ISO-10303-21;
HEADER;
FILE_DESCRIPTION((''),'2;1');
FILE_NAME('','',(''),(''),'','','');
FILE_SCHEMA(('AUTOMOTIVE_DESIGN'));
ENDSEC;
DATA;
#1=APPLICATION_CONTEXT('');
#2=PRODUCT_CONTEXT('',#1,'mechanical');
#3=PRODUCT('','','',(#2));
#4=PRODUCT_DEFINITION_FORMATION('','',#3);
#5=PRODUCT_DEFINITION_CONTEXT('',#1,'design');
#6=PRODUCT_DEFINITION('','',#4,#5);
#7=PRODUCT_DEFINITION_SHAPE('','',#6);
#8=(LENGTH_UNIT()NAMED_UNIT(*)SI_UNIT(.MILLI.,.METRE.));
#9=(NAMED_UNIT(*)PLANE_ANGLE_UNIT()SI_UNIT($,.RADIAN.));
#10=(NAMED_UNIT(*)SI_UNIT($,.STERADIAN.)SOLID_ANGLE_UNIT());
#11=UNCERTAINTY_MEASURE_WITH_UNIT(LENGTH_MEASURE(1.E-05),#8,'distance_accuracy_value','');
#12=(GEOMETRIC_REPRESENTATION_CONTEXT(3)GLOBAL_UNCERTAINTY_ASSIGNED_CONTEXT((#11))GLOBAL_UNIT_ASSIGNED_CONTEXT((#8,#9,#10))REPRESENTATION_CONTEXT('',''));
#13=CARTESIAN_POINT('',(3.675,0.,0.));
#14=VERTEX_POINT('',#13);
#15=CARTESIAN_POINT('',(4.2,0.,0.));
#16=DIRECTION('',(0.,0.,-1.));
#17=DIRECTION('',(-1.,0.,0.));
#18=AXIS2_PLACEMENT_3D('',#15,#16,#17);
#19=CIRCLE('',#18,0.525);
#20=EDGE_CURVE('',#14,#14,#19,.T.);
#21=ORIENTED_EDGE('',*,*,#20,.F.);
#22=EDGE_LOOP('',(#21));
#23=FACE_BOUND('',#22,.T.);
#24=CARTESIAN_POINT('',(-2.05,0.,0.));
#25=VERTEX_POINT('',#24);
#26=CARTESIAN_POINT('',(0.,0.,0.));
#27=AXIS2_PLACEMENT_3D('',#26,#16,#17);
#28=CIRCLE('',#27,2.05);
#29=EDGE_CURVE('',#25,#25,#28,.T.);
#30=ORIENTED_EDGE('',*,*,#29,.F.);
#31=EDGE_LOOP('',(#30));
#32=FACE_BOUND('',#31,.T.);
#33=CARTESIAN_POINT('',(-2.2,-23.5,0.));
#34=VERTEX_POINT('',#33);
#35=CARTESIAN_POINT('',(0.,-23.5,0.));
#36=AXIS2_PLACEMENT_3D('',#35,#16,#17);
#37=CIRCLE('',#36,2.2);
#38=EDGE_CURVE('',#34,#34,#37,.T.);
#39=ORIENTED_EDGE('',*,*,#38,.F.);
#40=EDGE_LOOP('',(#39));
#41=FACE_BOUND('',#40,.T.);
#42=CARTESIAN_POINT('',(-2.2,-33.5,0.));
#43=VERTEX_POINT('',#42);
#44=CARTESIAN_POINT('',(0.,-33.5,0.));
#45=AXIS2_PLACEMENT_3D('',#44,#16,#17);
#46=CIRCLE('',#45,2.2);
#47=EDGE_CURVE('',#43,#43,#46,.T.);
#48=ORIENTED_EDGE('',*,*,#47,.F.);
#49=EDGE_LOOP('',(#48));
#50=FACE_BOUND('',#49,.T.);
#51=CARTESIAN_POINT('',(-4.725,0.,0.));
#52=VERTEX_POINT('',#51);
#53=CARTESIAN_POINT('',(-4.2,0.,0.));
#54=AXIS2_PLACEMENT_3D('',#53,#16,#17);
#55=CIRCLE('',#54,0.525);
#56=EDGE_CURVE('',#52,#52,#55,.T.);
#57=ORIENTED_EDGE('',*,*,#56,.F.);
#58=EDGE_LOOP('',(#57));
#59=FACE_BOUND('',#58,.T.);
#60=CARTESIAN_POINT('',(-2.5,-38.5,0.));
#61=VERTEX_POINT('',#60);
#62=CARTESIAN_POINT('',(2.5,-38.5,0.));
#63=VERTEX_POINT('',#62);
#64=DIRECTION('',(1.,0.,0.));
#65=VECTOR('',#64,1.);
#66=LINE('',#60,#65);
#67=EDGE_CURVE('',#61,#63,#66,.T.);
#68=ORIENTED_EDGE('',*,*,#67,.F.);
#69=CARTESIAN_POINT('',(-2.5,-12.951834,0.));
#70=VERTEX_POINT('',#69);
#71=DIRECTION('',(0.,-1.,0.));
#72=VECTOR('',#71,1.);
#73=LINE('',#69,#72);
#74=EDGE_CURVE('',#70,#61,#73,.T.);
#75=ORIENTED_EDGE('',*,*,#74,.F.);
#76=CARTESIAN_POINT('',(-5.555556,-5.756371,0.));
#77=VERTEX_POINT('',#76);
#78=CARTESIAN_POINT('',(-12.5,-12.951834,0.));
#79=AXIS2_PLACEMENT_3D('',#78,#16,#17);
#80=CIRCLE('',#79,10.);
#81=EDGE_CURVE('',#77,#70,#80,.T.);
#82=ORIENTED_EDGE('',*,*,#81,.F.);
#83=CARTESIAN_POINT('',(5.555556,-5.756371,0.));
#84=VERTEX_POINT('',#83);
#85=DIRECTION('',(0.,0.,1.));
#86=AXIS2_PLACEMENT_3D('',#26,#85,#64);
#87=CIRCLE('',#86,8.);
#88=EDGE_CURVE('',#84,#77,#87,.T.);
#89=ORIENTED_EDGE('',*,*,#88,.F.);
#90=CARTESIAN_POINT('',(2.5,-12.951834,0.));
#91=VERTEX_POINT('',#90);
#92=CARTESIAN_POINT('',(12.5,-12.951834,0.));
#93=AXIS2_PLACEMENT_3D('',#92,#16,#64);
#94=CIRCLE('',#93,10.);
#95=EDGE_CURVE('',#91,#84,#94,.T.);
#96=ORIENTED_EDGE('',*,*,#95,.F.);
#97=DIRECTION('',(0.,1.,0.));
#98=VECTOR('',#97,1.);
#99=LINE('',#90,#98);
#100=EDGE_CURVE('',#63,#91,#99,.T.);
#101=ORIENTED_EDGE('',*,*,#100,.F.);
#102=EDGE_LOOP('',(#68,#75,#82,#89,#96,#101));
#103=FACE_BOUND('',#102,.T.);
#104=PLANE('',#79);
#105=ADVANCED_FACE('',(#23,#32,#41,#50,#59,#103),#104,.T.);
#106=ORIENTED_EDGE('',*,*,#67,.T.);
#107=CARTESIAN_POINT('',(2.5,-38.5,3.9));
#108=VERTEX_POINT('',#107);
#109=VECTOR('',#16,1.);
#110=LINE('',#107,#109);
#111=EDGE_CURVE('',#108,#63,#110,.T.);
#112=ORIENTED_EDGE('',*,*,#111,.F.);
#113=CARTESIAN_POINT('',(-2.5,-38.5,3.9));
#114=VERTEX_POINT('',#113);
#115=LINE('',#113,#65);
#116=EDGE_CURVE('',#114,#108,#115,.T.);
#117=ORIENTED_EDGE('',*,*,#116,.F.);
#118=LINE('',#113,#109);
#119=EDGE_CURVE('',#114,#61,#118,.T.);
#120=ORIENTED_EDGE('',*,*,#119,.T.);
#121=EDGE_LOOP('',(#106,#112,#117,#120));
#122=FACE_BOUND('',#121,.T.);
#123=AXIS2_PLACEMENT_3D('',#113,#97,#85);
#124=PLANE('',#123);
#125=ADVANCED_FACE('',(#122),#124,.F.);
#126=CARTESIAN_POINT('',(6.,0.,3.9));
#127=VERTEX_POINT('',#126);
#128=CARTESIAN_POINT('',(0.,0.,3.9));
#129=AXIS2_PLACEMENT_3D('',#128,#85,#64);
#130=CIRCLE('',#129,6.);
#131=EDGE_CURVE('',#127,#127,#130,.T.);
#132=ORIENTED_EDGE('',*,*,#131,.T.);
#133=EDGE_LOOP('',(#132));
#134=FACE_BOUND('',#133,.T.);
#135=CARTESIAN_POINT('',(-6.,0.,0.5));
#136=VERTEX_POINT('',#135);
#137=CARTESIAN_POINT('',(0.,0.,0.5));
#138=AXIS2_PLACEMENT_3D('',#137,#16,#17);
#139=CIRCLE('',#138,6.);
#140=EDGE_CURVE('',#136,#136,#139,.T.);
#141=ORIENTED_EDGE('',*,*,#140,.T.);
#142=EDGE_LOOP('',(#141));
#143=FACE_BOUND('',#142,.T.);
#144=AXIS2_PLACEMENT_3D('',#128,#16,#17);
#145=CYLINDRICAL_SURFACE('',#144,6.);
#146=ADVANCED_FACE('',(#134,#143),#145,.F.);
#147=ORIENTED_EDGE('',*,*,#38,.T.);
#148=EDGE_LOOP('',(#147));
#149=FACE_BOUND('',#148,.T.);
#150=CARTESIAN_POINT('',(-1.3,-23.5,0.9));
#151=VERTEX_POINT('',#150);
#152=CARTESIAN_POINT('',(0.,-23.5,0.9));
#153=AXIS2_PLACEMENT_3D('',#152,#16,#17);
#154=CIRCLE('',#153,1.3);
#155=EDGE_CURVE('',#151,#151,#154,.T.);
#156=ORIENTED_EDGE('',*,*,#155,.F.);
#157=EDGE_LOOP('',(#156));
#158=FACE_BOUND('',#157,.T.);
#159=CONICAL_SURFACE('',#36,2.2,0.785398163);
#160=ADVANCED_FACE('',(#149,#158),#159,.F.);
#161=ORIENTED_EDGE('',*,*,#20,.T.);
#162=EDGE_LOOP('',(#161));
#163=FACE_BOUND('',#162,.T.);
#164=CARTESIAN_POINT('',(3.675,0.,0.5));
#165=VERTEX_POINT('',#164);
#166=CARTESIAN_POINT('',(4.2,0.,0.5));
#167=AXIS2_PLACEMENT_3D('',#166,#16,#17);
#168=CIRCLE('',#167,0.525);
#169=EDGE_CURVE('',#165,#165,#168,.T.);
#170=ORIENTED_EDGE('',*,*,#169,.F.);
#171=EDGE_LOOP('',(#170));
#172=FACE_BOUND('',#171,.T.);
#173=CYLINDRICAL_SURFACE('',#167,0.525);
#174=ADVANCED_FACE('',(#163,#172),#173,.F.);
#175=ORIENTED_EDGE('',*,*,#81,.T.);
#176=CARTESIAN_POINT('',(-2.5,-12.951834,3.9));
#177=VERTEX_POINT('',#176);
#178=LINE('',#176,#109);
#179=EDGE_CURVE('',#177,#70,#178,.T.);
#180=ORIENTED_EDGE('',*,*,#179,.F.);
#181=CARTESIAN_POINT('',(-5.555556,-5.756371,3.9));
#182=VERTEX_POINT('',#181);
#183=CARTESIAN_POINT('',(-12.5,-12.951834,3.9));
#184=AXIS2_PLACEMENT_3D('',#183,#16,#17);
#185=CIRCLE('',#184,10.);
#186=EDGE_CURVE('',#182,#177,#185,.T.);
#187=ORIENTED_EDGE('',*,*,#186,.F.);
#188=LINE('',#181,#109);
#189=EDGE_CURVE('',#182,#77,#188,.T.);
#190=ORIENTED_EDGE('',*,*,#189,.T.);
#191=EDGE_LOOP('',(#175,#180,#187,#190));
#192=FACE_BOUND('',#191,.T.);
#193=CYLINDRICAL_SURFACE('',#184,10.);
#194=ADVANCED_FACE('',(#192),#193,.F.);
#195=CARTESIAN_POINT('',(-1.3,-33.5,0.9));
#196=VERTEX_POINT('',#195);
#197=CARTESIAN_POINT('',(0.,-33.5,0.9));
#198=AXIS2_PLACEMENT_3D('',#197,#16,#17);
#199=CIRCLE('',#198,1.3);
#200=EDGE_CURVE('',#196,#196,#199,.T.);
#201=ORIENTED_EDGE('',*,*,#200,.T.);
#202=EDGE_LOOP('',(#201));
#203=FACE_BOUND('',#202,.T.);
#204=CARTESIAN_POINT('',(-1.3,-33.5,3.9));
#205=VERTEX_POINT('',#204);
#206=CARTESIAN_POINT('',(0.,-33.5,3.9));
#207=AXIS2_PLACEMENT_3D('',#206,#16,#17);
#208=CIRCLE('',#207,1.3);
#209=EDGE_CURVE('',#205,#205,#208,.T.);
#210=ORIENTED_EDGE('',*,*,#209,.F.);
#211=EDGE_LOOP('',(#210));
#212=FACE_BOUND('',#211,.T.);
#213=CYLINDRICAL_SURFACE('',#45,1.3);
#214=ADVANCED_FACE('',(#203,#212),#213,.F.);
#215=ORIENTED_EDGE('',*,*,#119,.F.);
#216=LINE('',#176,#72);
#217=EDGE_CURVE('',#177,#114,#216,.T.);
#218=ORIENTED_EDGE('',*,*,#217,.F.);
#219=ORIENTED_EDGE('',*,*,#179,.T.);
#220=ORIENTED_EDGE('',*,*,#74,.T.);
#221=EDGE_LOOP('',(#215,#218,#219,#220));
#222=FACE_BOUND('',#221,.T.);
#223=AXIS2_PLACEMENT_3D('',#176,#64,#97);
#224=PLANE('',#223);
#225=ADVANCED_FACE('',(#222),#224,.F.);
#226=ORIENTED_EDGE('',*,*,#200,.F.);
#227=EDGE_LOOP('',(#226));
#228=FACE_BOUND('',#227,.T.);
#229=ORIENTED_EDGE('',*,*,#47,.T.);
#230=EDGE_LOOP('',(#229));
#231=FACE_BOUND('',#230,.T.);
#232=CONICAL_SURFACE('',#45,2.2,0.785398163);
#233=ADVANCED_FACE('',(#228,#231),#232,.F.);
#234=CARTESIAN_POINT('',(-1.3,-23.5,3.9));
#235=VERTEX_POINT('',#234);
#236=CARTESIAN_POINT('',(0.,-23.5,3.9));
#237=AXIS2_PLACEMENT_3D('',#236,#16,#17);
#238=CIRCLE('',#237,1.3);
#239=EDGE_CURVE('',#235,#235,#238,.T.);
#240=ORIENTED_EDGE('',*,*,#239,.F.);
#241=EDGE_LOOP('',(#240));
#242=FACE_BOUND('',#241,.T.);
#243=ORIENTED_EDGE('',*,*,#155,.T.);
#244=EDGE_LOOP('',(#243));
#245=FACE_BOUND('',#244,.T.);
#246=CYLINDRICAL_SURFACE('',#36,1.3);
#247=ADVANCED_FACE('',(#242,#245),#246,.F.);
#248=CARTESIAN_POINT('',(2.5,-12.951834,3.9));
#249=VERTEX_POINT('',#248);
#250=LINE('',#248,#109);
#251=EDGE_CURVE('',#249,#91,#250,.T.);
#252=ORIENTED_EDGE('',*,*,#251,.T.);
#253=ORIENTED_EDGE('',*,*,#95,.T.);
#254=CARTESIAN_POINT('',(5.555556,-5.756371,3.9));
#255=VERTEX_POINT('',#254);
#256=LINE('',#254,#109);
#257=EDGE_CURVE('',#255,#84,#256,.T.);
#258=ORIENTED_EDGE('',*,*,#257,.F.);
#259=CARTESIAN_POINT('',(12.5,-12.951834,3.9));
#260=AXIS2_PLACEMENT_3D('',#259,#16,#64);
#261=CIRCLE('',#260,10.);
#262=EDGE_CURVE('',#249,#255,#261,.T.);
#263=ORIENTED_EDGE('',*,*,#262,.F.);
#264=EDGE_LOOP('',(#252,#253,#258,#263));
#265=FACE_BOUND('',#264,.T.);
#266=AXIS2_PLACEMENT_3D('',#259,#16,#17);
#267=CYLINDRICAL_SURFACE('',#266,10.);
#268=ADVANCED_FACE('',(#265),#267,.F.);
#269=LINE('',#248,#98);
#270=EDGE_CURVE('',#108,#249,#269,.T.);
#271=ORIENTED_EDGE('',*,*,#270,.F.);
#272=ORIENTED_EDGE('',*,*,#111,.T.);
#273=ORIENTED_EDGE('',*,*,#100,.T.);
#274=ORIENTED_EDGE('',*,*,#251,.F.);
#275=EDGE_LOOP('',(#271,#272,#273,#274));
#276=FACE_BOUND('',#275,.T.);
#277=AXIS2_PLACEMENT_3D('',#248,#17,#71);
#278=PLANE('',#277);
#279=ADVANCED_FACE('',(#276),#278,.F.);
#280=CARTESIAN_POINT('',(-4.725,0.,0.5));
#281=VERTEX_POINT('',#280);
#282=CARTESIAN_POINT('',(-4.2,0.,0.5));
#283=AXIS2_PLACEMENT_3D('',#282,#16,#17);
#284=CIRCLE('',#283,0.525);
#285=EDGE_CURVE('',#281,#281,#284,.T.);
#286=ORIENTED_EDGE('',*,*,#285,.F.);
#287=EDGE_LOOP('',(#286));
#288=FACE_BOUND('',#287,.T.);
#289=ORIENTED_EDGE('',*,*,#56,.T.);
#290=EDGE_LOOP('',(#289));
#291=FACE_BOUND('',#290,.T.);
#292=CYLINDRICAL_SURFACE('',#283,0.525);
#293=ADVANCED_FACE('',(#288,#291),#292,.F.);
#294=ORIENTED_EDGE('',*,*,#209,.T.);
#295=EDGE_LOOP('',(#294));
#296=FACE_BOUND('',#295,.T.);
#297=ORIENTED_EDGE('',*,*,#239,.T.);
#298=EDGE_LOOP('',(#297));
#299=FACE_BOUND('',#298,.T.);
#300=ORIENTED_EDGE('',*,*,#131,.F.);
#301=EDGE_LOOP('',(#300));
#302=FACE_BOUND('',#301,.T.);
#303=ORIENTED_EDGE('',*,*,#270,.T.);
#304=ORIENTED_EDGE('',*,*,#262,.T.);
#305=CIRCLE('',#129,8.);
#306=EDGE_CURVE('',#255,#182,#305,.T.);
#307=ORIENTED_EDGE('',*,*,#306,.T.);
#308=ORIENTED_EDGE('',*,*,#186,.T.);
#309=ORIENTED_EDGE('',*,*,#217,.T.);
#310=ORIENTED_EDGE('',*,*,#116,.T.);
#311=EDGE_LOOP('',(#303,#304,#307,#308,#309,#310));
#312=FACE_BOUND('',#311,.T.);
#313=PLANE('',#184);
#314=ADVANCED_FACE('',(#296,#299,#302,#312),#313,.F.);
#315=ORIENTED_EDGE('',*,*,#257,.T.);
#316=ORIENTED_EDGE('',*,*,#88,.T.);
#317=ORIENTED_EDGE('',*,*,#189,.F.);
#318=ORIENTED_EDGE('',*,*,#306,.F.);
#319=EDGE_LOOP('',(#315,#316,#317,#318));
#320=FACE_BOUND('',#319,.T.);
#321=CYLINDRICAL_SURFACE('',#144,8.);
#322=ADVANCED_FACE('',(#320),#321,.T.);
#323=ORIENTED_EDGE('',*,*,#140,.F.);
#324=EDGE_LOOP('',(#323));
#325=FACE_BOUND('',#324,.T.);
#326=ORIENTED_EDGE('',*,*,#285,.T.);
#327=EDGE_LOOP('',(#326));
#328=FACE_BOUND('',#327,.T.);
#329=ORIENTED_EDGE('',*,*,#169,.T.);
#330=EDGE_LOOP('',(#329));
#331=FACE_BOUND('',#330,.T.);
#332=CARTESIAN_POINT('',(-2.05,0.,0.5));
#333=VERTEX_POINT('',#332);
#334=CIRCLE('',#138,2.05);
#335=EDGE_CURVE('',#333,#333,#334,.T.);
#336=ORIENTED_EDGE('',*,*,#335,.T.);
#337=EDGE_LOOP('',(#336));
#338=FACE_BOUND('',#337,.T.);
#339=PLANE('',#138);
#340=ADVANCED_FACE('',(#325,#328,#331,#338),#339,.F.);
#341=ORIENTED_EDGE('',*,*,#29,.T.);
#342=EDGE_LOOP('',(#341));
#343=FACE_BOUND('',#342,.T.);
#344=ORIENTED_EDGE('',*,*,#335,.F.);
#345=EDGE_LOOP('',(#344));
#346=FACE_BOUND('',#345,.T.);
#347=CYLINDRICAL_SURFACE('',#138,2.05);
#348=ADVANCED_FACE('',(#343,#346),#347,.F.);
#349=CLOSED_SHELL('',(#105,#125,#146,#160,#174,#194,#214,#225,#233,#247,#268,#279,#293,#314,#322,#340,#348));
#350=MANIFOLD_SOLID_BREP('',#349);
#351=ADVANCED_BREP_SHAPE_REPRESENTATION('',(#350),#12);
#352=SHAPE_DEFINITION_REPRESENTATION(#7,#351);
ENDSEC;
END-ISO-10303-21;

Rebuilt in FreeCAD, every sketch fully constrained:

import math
import FreeCAD as App
import Part
import Sketcher

doc = App.newDocument("Part")
body = doc.addObject("PartDesign::Body", "Body")

sketch1 = body.newObject("Sketcher::SketchObject", "Sketch")
sketch1.AttachmentSupport = (doc.getObject("XY_Plane"), [""])
sketch1.MapMode = "FlatFace"
sketch1.addGeometry([
    Part.LineSegment(App.Vector(-2, -13, 0), App.Vector(-2, -38, 0)),
    Part.LineSegment(App.Vector(-2, -38, 0), App.Vector(2, -38, 0)),
    Part.LineSegment(App.Vector(2, -38, 0), App.Vector(2, -13, 0)),
    Part.ArcOfCircle(Part.Circle(App.Vector(12, -13, 0), App.Vector(0, 0, 1), 10), math.radians(134), math.radians(180)),
    Part.ArcOfCircle(Part.Circle(App.Vector(0, 0, 0), App.Vector(0, 0, 1), 8), math.radians(-46), math.radians(226)),
    Part.ArcOfCircle(Part.Circle(App.Vector(-12, -13, 0), App.Vector(0, 0, 1), 10), math.radians(0), math.radians(46)),
    Part.Circle(App.Vector(0, 0, 0), App.Vector(0, 0, 1), 6),
], False)
sketch1.addConstraint([
    Sketcher.Constraint("Coincident", 0, 2, 1, 1),
    Sketcher.Constraint("Coincident", 1, 2, 2, 1),
    Sketcher.Constraint("Tangent", 2, 2, 3, 2),
    Sketcher.Constraint("Tangent", 3, 1, 4, 1),
    Sketcher.Constraint("Tangent", 4, 2, 5, 2),
    Sketcher.Constraint("Tangent", 5, 1, 0, 1),
    Sketcher.Constraint("Vertical", 0),
    Sketcher.Constraint("Horizontal", 1),
    Sketcher.Constraint("Vertical", 2),
    Sketcher.Constraint("Coincident", 4, 3, -1, 1),
    Sketcher.Constraint("Coincident", 6, 3, -1, 1),
    Sketcher.Constraint("Equal", 3, 5),
    Sketcher.Constraint("Horizontal", 3, 3, 5, 3),
    Sketcher.Constraint("Diameter", 6, 12.0),
    Sketcher.Constraint("Radius", 3, 10.0),
    Sketcher.Constraint("Radius", 4, 8.0),
    Sketcher.Constraint("DistanceX", 1, 1, 1, 2, 5.0),
    Sketcher.Constraint("DistanceY", 0, 2, -1, 1, 38.5),
])
pad1 = body.newObject("PartDesign::Pad", "Pad")
pad1.Profile = sketch1
pad1.Length = 3.9

sketch2 = body.newObject("Sketcher::SketchObject", "Sketch001")
sketch2.AttachmentSupport = (doc.getObject("XY_Plane"), [""])
sketch2.MapMode = "FlatFace"
sketch2.addGeometry([
    Part.Circle(App.Vector(0, 0, 0), App.Vector(0, 0, 1), 8),
    Part.Circle(App.Vector(4.2, 0, 0), App.Vector(0, 0, 1), 0.5),
    Part.Circle(App.Vector(0, 0, 0), App.Vector(0, 0, 1), 2),
    Part.Circle(App.Vector(-4.2, 0, 0), App.Vector(0, 0, 1), 0.5),
], False)
sketch2.addConstraint([
    Sketcher.Constraint("Coincident", 0, 3, -1, 1),
    Sketcher.Constraint("Coincident", 2, 3, -1, 1),
    Sketcher.Constraint("Equal", 1, 3),
    Sketcher.Constraint("Symmetric", 1, 3, 3, 3, -1, 1),
    Sketcher.Constraint("PointOnObject", 1, 3, -1),
    Sketcher.Constraint("Diameter", 0, 16.0),
    Sketcher.Constraint("Diameter", 2, 4.1),
    Sketcher.Constraint("Diameter", 1, 1.05),
    Sketcher.Constraint("DistanceX", -1, 1, 1, 3, 4.2),
])
pad2 = body.newObject("PartDesign::Pad", "Pad001")
pad2.Profile = sketch2
pad2.Length = 0.5

sketch3 = body.newObject("Sketcher::SketchObject", "Sketch002")
sketch3.AttachmentSupport = (doc.getObject("XY_Plane"), [""])
sketch3.MapMode = "FlatFace"
sketch3.addGeometry([
    Part.Circle(App.Vector(0, -33.5, 0), App.Vector(0, 0, 1), 1.3),
    Part.Circle(App.Vector(0, -23.5, 0), App.Vector(0, 0, 1), 1.3),
], False)
sketch3.addConstraint([
    Sketcher.Constraint("Equal", 0, 1),
    Sketcher.Constraint("PointOnObject", 0, 3, -2),
    Sketcher.Constraint("PointOnObject", 1, 3, -2),
    Sketcher.Constraint("Diameter", 0, 2.6),
    Sketcher.Constraint("DistanceY", 0, 3, 1, 3, 10.0),
    Sketcher.Constraint("DistanceY", 0, 3, -1, 1, 33.5),
])
doc.recompute()
hole = body.newObject("PartDesign::Hole", "Hole")
hole.Profile = sketch3
hole.ThreadType = "None"
hole.Diameter = 2.6
hole.DepthType = "ThroughAll"
hole.HoleCutType = "Countersink"
hole.HoleCutDiameter = 4.4
hole.HoleCutCountersinkAngle = 90
hole.Reversed = True

doc.recompute()
